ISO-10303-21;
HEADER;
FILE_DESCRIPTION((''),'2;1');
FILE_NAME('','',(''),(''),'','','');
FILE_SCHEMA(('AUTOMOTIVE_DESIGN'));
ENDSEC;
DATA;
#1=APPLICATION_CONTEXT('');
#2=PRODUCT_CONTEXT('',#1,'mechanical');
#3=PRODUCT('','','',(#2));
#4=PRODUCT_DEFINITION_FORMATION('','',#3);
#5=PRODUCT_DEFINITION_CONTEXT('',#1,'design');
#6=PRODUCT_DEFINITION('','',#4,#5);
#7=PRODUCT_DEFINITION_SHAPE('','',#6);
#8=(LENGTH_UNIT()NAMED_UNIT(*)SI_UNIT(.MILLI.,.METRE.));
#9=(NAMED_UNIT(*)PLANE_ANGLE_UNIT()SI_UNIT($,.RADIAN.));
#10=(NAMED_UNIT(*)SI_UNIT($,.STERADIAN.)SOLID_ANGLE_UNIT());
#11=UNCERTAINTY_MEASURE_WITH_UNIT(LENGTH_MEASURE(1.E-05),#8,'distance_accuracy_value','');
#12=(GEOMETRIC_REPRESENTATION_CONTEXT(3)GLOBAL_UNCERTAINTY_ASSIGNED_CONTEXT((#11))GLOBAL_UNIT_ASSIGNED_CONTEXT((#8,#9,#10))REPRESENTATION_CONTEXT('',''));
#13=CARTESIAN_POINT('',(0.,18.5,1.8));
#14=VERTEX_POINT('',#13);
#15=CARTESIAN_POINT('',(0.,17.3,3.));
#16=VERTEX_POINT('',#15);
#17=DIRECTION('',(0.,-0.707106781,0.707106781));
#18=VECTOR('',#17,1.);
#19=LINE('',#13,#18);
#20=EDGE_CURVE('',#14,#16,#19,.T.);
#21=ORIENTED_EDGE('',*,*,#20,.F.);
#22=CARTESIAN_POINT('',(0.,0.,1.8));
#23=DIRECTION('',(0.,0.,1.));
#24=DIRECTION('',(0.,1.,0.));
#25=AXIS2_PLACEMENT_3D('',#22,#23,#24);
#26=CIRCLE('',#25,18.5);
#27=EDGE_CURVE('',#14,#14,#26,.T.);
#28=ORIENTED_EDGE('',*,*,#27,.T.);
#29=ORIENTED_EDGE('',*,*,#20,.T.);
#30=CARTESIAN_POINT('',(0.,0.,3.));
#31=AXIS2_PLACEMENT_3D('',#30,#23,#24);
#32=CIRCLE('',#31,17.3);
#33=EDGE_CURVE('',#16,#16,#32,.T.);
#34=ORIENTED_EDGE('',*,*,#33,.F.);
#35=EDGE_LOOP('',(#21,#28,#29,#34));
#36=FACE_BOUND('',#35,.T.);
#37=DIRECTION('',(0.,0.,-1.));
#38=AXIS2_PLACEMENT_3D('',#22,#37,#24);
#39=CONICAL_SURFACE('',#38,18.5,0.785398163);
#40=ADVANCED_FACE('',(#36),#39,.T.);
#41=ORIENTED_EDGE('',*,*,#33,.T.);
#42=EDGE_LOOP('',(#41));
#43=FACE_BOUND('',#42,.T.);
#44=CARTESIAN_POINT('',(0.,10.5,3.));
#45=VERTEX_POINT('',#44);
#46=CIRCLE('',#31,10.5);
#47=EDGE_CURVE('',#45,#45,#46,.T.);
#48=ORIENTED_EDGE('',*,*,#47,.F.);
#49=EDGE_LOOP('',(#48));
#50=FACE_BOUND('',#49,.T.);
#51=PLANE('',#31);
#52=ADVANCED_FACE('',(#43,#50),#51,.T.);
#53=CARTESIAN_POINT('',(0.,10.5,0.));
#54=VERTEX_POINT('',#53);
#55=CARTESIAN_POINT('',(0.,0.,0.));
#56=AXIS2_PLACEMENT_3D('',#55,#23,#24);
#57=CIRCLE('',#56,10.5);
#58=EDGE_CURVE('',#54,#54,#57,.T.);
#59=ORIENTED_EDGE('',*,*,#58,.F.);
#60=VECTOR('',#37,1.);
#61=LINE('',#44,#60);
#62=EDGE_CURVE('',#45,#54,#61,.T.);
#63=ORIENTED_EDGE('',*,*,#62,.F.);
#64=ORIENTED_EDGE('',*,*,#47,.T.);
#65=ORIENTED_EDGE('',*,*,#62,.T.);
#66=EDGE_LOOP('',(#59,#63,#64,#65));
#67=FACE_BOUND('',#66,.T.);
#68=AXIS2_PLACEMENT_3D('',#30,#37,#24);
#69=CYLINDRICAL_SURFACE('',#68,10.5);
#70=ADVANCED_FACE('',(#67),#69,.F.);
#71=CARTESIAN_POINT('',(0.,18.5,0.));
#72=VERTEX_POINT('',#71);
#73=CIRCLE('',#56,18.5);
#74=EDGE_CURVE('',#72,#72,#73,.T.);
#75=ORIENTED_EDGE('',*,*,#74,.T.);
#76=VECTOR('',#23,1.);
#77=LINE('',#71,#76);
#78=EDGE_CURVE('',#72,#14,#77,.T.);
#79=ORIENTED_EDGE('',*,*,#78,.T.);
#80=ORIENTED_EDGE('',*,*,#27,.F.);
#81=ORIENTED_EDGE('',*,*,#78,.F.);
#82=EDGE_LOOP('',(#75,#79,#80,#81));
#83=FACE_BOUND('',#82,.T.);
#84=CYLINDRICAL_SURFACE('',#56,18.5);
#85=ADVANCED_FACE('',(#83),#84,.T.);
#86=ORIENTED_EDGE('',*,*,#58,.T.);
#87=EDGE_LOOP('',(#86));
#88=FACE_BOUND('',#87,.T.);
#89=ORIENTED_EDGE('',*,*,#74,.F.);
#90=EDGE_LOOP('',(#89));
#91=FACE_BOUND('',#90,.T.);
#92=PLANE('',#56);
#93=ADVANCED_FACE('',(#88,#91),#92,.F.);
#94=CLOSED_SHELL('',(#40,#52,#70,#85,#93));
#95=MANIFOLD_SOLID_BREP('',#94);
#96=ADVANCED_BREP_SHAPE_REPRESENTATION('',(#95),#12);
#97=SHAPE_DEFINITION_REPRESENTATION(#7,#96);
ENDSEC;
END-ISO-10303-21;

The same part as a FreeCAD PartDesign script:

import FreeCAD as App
import Part
import Sketcher
from FreeCAD import Vector
Q = App.Units.Quantity

doc = App.newDocument("Part")
params = doc.addObject("Spreadsheet::Sheet", "Params")
for row, (alias, value) in enumerate([
    ("sketch1_width", "8 mm"),
    ("sketch1_height", "3 mm"),
    ("sketch1_width2", "6.8 mm"),
    ("revolution_angle", "360 deg"),
], start=1):
    params.set(f"A{row}", alias)
    params.set(f"B{row}", "=" + value)
    params.setAlias(f"B{row}", alias)

body = doc.addObject("PartDesign::Body", "Body")

sketch1 = body.newObject("Sketcher::SketchObject", "Sketch")
sketch1.AttachmentSupport = (doc.getObject("YZ_Plane"), [""])
sketch1.MapMode = "FlatFace"
sketch1.addGeometry([
    Part.LineSegment(Vector(10.5, 0, 0), Vector(18.5, 0, 0)),
    Part.LineSegment(Vector(18.5, 0, 0), Vector(18.5, 1.8, 0)),
    Part.LineSegment(Vector(18.5, 1.8, 0), Vector(17.3, 3, 0)),
    Part.LineSegment(Vector(17.3, 3, 0), Vector(10.5, 3, 0)),
    Part.LineSegment(Vector(10.5, 3, 0), Vector(10.5, 0, 0)),
], False)
sketch1.addConstraint([
    Sketcher.Constraint("Coincident", 0, 2, 1, 1),
    Sketcher.Constraint("Coincident", 1, 2, 2, 1),
    Sketcher.Constraint("Coincident", 2, 2, 3, 1),
    Sketcher.Constraint("Coincident", 3, 2, 4, 1),
    Sketcher.Constraint("Coincident", 4, 2, 0, 1),
    Sketcher.Constraint("Horizontal", 0),
    Sketcher.Constraint("Vertical", 1),
    Sketcher.Constraint("Horizontal", 3),
    Sketcher.Constraint("Vertical", 4),
    Sketcher.Constraint("PointOnObject", 0, 2, -1),
    Sketcher.Constraint("DistanceX", 0, 1, 0, 2, Q("8 mm")),
    Sketcher.Constraint("DistanceY", 4, 2, 4, 1, Q("3 mm")),
    Sketcher.Constraint("Angle", 2, Q("135 deg")),
    Sketcher.Constraint("DistanceX", 3, 2, 3, 1, Q("6.8 mm")),
    Sketcher.Constraint("DistanceX", -1, 1, 0, 2, Q("18.5 mm")),
])
sketch1.setExpression("Constraints[10]", "Params.sketch1_width")
sketch1.setExpression("Constraints[11]", "Params.sketch1_height")
sketch1.setExpression("Constraints[13]", "Params.sketch1_width2")
revolution = body.newObject("PartDesign::Revolution", "Revolution")
revolution.Profile = sketch1
revolution.ReferenceAxis = (sketch1, ["V_Axis"])
revolution.setExpression("Angle", "Params.revolution_angle")

doc.recompute()
